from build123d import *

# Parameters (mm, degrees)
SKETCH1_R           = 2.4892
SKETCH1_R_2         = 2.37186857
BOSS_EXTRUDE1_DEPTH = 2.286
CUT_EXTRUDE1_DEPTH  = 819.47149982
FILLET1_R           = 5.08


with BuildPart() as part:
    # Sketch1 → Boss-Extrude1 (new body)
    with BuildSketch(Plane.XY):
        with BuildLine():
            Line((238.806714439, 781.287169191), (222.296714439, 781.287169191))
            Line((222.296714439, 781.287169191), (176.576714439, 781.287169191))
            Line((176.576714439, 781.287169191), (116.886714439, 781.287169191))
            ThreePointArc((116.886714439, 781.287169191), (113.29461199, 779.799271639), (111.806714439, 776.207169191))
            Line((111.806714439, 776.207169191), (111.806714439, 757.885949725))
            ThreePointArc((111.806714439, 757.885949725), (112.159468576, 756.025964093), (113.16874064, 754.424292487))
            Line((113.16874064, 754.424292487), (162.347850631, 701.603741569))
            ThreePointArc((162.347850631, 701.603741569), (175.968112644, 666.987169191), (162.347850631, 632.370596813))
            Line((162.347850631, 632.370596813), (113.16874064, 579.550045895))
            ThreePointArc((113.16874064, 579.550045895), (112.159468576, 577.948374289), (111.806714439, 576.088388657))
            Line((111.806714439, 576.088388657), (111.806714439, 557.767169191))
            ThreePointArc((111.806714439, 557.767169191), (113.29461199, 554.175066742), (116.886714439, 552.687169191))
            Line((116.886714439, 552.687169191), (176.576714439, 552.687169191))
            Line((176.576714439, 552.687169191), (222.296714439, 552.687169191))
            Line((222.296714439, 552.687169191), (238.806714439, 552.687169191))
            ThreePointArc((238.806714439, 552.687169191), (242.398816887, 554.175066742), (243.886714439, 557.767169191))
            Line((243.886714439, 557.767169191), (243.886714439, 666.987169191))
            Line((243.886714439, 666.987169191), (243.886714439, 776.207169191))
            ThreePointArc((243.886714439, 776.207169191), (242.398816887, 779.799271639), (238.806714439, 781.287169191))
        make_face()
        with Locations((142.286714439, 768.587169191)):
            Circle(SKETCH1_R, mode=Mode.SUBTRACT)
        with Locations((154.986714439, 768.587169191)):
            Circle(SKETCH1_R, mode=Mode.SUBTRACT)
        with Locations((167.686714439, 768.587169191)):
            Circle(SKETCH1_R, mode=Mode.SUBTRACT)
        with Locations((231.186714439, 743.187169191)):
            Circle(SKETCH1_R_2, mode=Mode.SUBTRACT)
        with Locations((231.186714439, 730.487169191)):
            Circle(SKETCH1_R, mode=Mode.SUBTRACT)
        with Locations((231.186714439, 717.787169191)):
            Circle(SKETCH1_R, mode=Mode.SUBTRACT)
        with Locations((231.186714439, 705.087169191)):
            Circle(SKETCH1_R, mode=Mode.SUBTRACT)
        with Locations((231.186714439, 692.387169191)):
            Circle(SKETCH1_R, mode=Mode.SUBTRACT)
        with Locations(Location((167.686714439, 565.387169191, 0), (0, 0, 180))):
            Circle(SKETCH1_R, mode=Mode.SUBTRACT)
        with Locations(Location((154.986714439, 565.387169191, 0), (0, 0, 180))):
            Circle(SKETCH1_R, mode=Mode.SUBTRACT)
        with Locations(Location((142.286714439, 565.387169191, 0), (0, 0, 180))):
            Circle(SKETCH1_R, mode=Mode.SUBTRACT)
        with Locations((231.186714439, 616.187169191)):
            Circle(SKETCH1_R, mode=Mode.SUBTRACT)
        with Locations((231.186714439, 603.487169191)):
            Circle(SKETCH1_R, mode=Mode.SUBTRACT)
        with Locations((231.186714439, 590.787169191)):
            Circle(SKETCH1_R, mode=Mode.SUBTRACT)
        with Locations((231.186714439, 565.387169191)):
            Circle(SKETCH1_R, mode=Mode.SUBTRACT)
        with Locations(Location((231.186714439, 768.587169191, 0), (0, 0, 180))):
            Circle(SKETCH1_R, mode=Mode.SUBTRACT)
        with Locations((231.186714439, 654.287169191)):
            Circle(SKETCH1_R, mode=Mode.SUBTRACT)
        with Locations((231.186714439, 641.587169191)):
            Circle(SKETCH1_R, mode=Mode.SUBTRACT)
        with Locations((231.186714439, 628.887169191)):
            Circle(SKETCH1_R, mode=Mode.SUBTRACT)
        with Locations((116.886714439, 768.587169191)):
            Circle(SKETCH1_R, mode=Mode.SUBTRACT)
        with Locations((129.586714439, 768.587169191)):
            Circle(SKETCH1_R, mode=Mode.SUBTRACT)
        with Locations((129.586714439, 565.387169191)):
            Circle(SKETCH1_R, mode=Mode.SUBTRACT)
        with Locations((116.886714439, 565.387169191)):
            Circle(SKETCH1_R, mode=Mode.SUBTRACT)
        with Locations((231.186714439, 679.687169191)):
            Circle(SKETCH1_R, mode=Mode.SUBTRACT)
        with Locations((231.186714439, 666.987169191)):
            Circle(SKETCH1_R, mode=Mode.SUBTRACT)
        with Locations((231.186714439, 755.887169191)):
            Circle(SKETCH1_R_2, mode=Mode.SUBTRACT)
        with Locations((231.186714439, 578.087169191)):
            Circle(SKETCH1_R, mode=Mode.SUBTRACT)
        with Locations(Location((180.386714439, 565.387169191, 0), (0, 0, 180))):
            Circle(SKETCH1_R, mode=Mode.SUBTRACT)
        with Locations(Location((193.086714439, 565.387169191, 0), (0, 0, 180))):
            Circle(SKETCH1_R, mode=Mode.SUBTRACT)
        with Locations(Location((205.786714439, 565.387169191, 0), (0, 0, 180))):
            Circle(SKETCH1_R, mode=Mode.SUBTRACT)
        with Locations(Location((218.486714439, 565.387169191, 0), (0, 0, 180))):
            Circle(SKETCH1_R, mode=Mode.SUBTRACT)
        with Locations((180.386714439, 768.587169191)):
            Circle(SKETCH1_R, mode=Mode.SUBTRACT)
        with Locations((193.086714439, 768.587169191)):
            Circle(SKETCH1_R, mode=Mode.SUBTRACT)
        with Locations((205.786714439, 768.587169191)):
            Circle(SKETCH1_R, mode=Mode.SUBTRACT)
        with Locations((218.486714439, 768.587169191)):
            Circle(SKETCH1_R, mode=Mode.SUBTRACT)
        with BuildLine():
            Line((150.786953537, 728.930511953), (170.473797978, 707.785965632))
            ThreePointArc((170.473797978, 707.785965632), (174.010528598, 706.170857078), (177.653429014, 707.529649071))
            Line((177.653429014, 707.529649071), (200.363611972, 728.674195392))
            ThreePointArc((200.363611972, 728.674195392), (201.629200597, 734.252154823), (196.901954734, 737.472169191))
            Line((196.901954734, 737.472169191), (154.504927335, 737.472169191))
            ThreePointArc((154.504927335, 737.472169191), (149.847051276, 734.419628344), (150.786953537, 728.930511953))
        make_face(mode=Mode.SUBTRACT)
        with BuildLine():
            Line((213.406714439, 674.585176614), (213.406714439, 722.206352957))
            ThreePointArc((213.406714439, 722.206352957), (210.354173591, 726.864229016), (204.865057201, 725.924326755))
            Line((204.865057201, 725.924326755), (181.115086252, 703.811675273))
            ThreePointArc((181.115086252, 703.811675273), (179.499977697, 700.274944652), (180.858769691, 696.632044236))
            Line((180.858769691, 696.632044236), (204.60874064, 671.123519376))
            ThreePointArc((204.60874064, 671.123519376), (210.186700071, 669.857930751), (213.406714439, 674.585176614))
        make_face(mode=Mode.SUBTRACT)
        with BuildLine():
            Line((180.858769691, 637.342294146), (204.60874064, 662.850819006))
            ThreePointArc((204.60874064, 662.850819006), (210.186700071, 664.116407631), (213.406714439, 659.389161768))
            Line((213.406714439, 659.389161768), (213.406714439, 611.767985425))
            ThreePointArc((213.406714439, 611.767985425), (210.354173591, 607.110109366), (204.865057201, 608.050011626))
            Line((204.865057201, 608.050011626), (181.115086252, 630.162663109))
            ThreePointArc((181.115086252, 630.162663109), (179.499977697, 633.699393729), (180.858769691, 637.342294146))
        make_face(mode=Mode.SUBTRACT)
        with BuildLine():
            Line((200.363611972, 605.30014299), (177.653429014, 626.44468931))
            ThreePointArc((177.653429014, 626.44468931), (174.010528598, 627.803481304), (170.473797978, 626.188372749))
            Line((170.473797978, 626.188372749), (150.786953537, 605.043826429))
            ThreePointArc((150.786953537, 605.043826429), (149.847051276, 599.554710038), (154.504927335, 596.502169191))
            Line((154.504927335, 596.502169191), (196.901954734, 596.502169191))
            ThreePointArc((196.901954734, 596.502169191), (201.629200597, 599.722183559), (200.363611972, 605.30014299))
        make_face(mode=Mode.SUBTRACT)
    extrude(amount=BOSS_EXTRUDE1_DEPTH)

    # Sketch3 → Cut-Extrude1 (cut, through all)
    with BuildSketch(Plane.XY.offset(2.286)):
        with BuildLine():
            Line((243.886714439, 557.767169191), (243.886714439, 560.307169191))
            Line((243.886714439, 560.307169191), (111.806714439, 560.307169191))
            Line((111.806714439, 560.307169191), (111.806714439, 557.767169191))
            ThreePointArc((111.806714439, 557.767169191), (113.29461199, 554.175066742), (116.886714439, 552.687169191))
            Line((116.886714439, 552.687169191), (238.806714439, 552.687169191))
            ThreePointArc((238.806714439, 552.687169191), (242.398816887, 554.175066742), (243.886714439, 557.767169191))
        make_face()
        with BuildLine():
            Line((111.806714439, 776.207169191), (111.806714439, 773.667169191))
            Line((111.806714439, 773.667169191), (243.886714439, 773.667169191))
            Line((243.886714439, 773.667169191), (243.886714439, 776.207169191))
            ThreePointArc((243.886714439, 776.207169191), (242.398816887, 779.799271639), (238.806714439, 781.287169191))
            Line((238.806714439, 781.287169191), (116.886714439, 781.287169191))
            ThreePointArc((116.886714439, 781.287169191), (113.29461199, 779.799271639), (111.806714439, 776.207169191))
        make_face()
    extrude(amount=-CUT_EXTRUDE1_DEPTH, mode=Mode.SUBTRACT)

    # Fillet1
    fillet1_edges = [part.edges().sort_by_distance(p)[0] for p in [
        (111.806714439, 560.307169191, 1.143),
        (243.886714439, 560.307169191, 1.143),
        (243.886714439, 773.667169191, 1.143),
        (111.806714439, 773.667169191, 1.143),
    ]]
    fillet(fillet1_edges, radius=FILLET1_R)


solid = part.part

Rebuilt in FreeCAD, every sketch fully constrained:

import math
import FreeCAD as App
import Part
import Sketcher
from FreeCAD import Vector
Q = App.Units.Quantity


def edges_at(feature, points):
    """Names of the edges that pass closest to the given points."""
    edges = feature.Shape.Edges
    near = lambda p: min(range(len(edges)), key=lambda i: edges[i].distToShape(Part.Vertex(*p))[0])
    return sorted({f"Edge{near(p) + 1}" for p in points})

doc = App.newDocument("Part")
body = doc.addObject("PartDesign::Body", "Body")

# Sketch on XY plane
sketch1 = doc.addObject("Sketcher::SketchObject", "Sketch")
body.addObject(sketch1)
sketch1.AttachmentSupport = (doc.XY_Plane, [""])
sketch1.MapMode = "FlatFace"
sketch1.addGeometry([
    Part.LineSegment(Vector(238.8, 781.3, 0), Vector(116.9, 781.3, 0)),  # 0
    Part.ArcOfCircle(Part.Circle(Vector(116.9, 776.2, 0), Vector(0, 0, 1), 5.1), math.radians(90), math.radians(180)),  # 1
    Part.LineSegment(Vector(111.8, 776.2, 0), Vector(111.8, 757.9, 0)),  # 2
    Part.ArcOfCircle(Part.Circle(Vector(116.9, 757.9, 0), Vector(0, 0, 1), 5.1), math.radians(180), math.radians(223)),  # 3
    Part.LineSegment(Vector(113.2, 754.4, 0), Vector(162.3, 701.6, 0)),  # 4
    Part.ArcOfCircle(Part.Circle(Vector(125.2, 667, 0), Vector(0, 0, 1), 50.8), math.radians(-43), math.radians(43)),  # 5
    Part.LineSegment(Vector(162.3, 632.4, 0), Vector(113.2, 579.6, 0)),  # 6
    Part.ArcOfCircle(Part.Circle(Vector(116.9, 576.1, 0), Vector(0, 0, 1), 5.1), math.radians(137), math.radians(180)),  # 7
    Part.LineSegment(Vector(111.8, 576.1, 0), Vector(111.8, 557.8, 0)),  # 8
    Part.ArcOfCircle(Part.Circle(Vector(116.9, 557.8, 0), Vector(0, 0, 1), 5.1), math.radians(180), math.radians(270)),  # 9
    Part.LineSegment(Vector(116.9, 552.7, 0), Vector(238.8, 552.7, 0)),  # 10
    Part.ArcOfCircle(Part.Circle(Vector(238.8, 557.8, 0), Vector(0, 0, 1), 5.1), math.radians(-90), math.radians(0)),  # 11
    Part.LineSegment(Vector(243.9, 557.8, 0), Vector(243.9, 776.2, 0)),  # 12
    Part.ArcOfCircle(Part.Circle(Vector(238.8, 776.2, 0), Vector(0, 0, 1), 5.1), math.radians(0), math.radians(90)),  # 13
    Part.Circle(Vector(116.9, 565.4, 0), Vector(0, 0, 1), 2.5),  # 14
    Part.Circle(Vector(129.6, 565.4, 0), Vector(0, 0, 1), 2.5),  # 15
    Part.Circle(Vector(142.3, 565.4, 0), Vector(0, 0, 1), 2.5),  # 16
    Part.Circle(Vector(155, 565.4, 0), Vector(0, 0, 1), 2.5),  # 17
    Part.Circle(Vector(167.7, 565.4, 0), Vector(0, 0, 1), 2.5),  # 18
    Part.Circle(Vector(180.4, 565.4, 0), Vector(0, 0, 1), 2.5),  # 19
    Part.Circle(Vector(193.1, 565.4, 0), Vector(0, 0, 1), 2.5),  # 20
    Part.LineSegment(Vector(177.7, 626.4, 0), Vector(200.4, 605.3, 0)),  # 21
    Part.ArcOfCircle(Part.Circle(Vector(196.9, 601.6, 0), Vector(0, 0, 1), 5.1), math.radians(-90), math.radians(47)),  # 22
    Part.LineSegment(Vector(196.9, 596.5, 0), Vector(154.5, 596.5, 0)),  # 23
    Part.ArcOfCircle(Part.Circle(Vector(154.5, 601.6, 0), Vector(0, 0, 1), 5.1), math.radians(137), math.radians(270)),  # 24
    Part.LineSegment(Vector(150.8, 605, 0), Vector(170.5, 626.2, 0)),  # 25
    Part.ArcOfCircle(Part.Circle(Vector(174.2, 622.7, 0), Vector(0, 0, 1), 5.1), math.radians(47), math.radians(137)),  # 26
    Part.Circle(Vector(205.8, 565.4, 0), Vector(0, 0, 1), 2.5),  # 27
    Part.Circle(Vector(218.5, 565.4, 0), Vector(0, 0, 1), 2.5),  # 28
    Part.Circle(Vector(231.2, 565.4, 0), Vector(0, 0, 1), 2.5),  # 29
    Part.Circle(Vector(231.2, 578.1, 0), Vector(0, 0, 1), 2.5),  # 30
    Part.Circle(Vector(231.2, 590.8, 0), Vector(0, 0, 1), 2.5),  # 31
    Part.Circle(Vector(231.2, 603.5, 0), Vector(0, 0, 1), 2.5),  # 32
    Part.ArcOfCircle(Part.Circle(Vector(184.6, 633.9, 0), Vector(0, 0, 1), 5.1), math.radians(137), math.radians(227)),  # 33
    Part.LineSegment(Vector(180.9, 637.3, 0), Vector(204.6, 662.9, 0)),  # 34
    Part.ArcOfCircle(Part.Circle(Vector(208.3, 659.4, 0), Vector(0, 0, 1), 5.1), math.radians(0), math.radians(137)),  # 35
    Part.LineSegment(Vector(213.4, 659.4, 0), Vector(213.4, 611.8, 0)),  # 36
    Part.ArcOfCircle(Part.Circle(Vector(208.3, 611.8, 0), Vector(0, 0, 1), 5.1), math.radians(-133), math.radians(0)),  # 37
    Part.LineSegment(Vector(204.9, 608.1, 0), Vector(181.1, 630.2, 0)),  # 38
    Part.Circle(Vector(231.2, 616.2, 0), Vector(0, 0, 1), 2.5),  # 39
    Part.Circle(Vector(231.2, 628.9, 0), Vector(0, 0, 1), 2.5),  # 40
    Part.Circle(Vector(231.2, 641.6, 0), Vector(0, 0, 1), 2.5),  # 41
    Part.Circle(Vector(231.2, 654.3, 0), Vector(0, 0, 1), 2.5),  # 42
    Part.Circle(Vector(116.9, 768.6, 0), Vector(0, 0, 1), 2.5),  # 43
    Part.Circle(Vector(129.6, 768.6, 0), Vector(0, 0, 1), 2.5),  # 44
    Part.Circle(Vector(142.3, 768.6, 0), Vector(0, 0, 1), 2.5),  # 45
    Part.Circle(Vector(155, 768.6, 0), Vector(0, 0, 1), 2.5),  # 46
    Part.Circle(Vector(167.7, 768.6, 0), Vector(0, 0, 1), 2.5),  # 47
    Part.LineSegment(Vector(213.4, 722.2, 0), Vector(213.4, 674.6, 0)),  # 48
    Part.ArcOfCircle(Part.Circle(Vector(208.3, 674.6, 0), Vector(0, 0, 1), 5.1), math.radians(-137), math.radians(0)),  # 49
    Part.LineSegment(Vector(204.6, 671.1, 0), Vector(180.9, 696.6, 0)),  # 50
    Part.ArcOfCircle(Part.Circle(Vector(184.6, 700.1, 0), Vector(0, 0, 1), 5.1), math.radians(133), math.radians(223)),  # 51
    Part.LineSegment(Vector(181.1, 703.8, 0), Vector(204.9, 725.9, 0)),  # 52
    Part.ArcOfCircle(Part.Circle(Vector(208.3, 722.2, 0), Vector(0, 0, 1), 5.1), math.radians(0), math.radians(133)),  # 53
    Part.Circle(Vector(231.2, 667, 0), Vector(0, 0, 1), 2.5),  # 54
    Part.Circle(Vector(231.2, 679.7, 0), Vector(0, 0, 1), 2.5),  # 55
    Part.Circle(Vector(231.2, 692.4, 0), Vector(0, 0, 1), 2.5),  # 56
    Part.Circle(Vector(231.2, 705.1, 0), Vector(0, 0, 1), 2.5),  # 57
    Part.Circle(Vector(231.2, 717.8, 0), Vector(0, 0, 1), 2.5),  # 58
    Part.LineSegment(Vector(170.5, 707.8, 0), Vector(150.8, 728.9, 0)),  # 59
    Part.ArcOfCircle(Part.Circle(Vector(154.5, 732.4, 0), Vector(0, 0, 1), 5.1), math.radians(90), math.radians(223)),  # 60
    Part.LineSegment(Vector(154.5, 737.5, 0), Vector(196.9, 737.5, 0)),  # 61
    Part.ArcOfCircle(Part.Circle(Vector(196.9, 732.4, 0), Vector(0, 0, 1), 5.1), math.radians(-47), math.radians(90)),  # 62
    Part.LineSegment(Vector(200.4, 728.7, 0), Vector(177.7, 707.5, 0)),  # 63
    Part.ArcOfCircle(Part.Circle(Vector(174.2, 711.2, 0), Vector(0, 0, 1), 5.1), math.radians(-137), math.radians(-47)),  # 64
    Part.Circle(Vector(180.4, 768.6, 0), Vector(0, 0, 1), 2.5),  # 65
    Part.Circle(Vector(193.1, 768.6, 0), Vector(0, 0, 1), 2.5),  # 66
    Part.Circle(Vector(231.2, 730.5, 0), Vector(0, 0, 1), 2.5),  # 67
    Part.Circle(Vector(231.2, 743.2, 0), Vector(0, 0, 1), 2.4),  # 68
    Part.Circle(Vector(205.8, 768.6, 0), Vector(0, 0, 1), 2.5),  # 69
    Part.Circle(Vector(218.5, 768.6, 0), Vector(0, 0, 1), 2.5),  # 70
    Part.Circle(Vector(231.2, 755.9, 0), Vector(0, 0, 1), 2.4),  # 71
    Part.Circle(Vector(231.2, 768.6, 0), Vector(0, 0, 1), 2.5),  # 72
], False)
sketch1.addConstraint([
    Sketcher.Constraint("Tangent", 0, 2, 1, 1),
    Sketcher.Constraint("Tangent", 1, 2, 2, 1),
    Sketcher.Constraint("Tangent", 2, 2, 3, 1),
    Sketcher.Constraint("Tangent", 3, 2, 4, 1),
    Sketcher.Constraint("Tangent", 4, 2, 5, 2),
    Sketcher.Constraint("Tangent", 5, 1, 6, 1),
    Sketcher.Constraint("Tangent", 6, 2, 7, 1),
    Sketcher.Constraint("Tangent", 7, 2, 8, 1),
    Sketcher.Constraint("Tangent", 8, 2, 9, 1),
    Sketcher.Constraint("Tangent", 9, 2, 10, 1),
    Sketcher.Constraint("Tangent", 10, 2, 11, 1),
    Sketcher.Constraint("Tangent", 11, 2, 12, 1),
    Sketcher.Constraint("Tangent", 12, 2, 13, 1),
    Sketcher.Constraint("Tangent", 13, 2, 0, 1),
    Sketcher.Constraint("Tangent", 21, 2, 22, 2),
    Sketcher.Constraint("Tangent", 22, 1, 23, 1),
    Sketcher.Constraint("Tangent", 23, 2, 24, 2),
    Sketcher.Constraint("Tangent", 24, 1, 25, 1),
    Sketcher.Constraint("Tangent", 25, 2, 26, 2),
    Sketcher.Constraint("Tangent", 26, 1, 21, 1),
    Sketcher.Constraint("Tangent", 33, 1, 34, 1),
    Sketcher.Constraint("Tangent", 34, 2, 35, 2),
    Sketcher.Constraint("Tangent", 35, 1, 36, 1),
    Sketcher.Constraint("Tangent", 36, 2, 37, 2),
    Sketcher.Constraint("Tangent", 37, 1, 38, 1),
    Sketcher.Constraint("Tangent", 38, 2, 33, 2),
    Sketcher.Constraint("Tangent", 48, 2, 49, 2),
    Sketcher.Constraint("Tangent", 49, 1, 50, 1),
    Sketcher.Constraint("Tangent", 50, 2, 51, 2),
    Sketcher.Constraint("Tangent", 51, 1, 52, 1),
    Sketcher.Constraint("Tangent", 52, 2, 53, 2),
    Sketcher.Constraint("Tangent", 53, 1, 48, 1),
    Sketcher.Constraint("Tangent", 59, 2, 60, 2),
    Sketcher.Constraint("Tangent", 60, 1, 61, 1),
    Sketcher.Constraint("Tangent", 61, 2, 62, 2),
    Sketcher.Constraint("Tangent", 62, 1, 63, 1),
    Sketcher.Constraint("Tangent", 63, 2, 64, 2),
    Sketcher.Constraint("Tangent", 64, 1, 59, 1),
    Sketcher.Constraint("Horizontal", 0),
    Sketcher.Constraint("Vertical", 2),
    Sketcher.Constraint("Vertical", 8),
    Sketcher.Constraint("Horizontal", 10),
    Sketcher.Constraint("Vertical", 12),
    Sketcher.Constraint("Horizontal", 23),
    Sketcher.Constraint("Vertical", 36),
    Sketcher.Constraint("Vertical", 48),
    Sketcher.Constraint("Horizontal", 61),
    Sketcher.Constraint("Equal", 1, 3),
    Sketcher.Constraint("Equal", 3, 7),
    Sketcher.Constraint("Equal", 7, 9),
    Sketcher.Constraint("Equal", 9, 11),
    Sketcher.Constraint("Equal", 11, 13),
    Sketcher.Constraint("Equal", 14, 15),
    Sketcher.Constraint("Equal", 15, 16),
    Sketcher.Constraint("Equal", 16, 17),
    Sketcher.Constraint("Equal", 17, 18),
    Sketcher.Constraint("Equal", 18, 19),
    Sketcher.Constraint("Equal", 19, 20),
    Sketcher.Constraint("Equal", 13, 22),
    Sketcher.Constraint("Equal", 22, 24),
    Sketcher.Constraint("Equal", 24, 26),
    Sketcher.Constraint("Equal", 20, 27),
    Sketcher.Constraint("Equal", 27, 28),
    Sketcher.Constraint("Equal", 28, 29),
    Sketcher.Constraint("Equal", 29, 30),
    Sketcher.Constraint("Equal", 30, 31),
    Sketcher.Constraint("Equal", 31, 32),
    Sketcher.Constraint("Equal", 26, 33),
    Sketcher.Constraint("Equal", 33, 35),
    Sketcher.Constraint("Equal", 35, 37),
    Sketcher.Constraint("Equal", 32, 39),
    Sketcher.Constraint("Equal", 39, 40),
    Sketcher.Constraint("Equal", 40, 41),
    Sketcher.Constraint("Equal", 41, 42),
    Sketcher.Constraint("Equal", 42, 43),
    Sketcher.Constraint("Equal", 43, 44),
    Sketcher.Constraint("Equal", 44, 45),
    Sketcher.Constraint("Equal", 45, 46),
    Sketcher.Constraint("Equal", 46, 47),
    Sketcher.Constraint("Equal", 37, 49),
    Sketcher.Constraint("Equal", 49, 51),
    Sketcher.Constraint("Equal", 51, 53),
    Sketcher.Constraint("Equal", 47, 54),
    Sketcher.Constraint("Equal", 54, 55),
    Sketcher.Constraint("Equal", 55, 56),
    Sketcher.Constraint("Equal", 56, 57),
    Sketcher.Constraint("Equal", 57, 58),
    Sketcher.Constraint("Equal", 53, 60),
    Sketcher.Constraint("Equal", 60, 62),
    Sketcher.Constraint("Equal", 62, 64),
    Sketcher.Constraint("Equal", 58, 65),
    Sketcher.Constraint("Equal", 65, 66),
    Sketcher.Constraint("Equal", 66, 67),
    Sketcher.Constraint("Equal", 67, 69),
    Sketcher.Constraint("Equal", 69, 70),
    Sketcher.Constraint("Equal", 68, 71),
    Sketcher.Constraint("Equal", 70, 72),
    Sketcher.Constraint("Perpendicular", 6, 21),
    Sketcher.Constraint("Perpendicular", 21, 25),
    Sketcher.Constraint("Parallel", 25, 34),
    Sketcher.Constraint("Perpendicular", 34, 38),
    Sketcher.Constraint("Parallel", 4, 50),
    Sketcher.Constraint("Perpendicular", 50, 52),
    Sketcher.Constraint("Perpendicular", 52, 59),
    Sketcher.Constraint("Perpendicular", 59, 63),
    Sketcher.Constraint("Horizontal", 14, 3, 15, 3),
    Sketcher.Constraint("Horizontal", 15, 3, 16, 3),
    Sketcher.Constraint("Horizontal", 16, 3, 17, 3),
    Sketcher.Constraint("Horizontal", 17, 3, 18, 3),
    Sketcher.Constraint("Horizontal", 18, 3, 19, 3),
    Sketcher.Constraint("Horizontal", 19, 3, 20, 3),
    Sketcher.Constraint("Horizontal", 20, 3, 27, 3),
    Sketcher.Constraint("Horizontal", 27, 3, 28, 3),
    Sketcher.Constraint("Horizontal", 28, 3, 29, 3),
    Sketcher.Constraint("Horizontal", 43, 3, 44, 3),
    Sketcher.Constraint("Horizontal", 44, 3, 45, 3),
    Sketcher.Constraint("Horizontal", 45, 3, 46, 3),
    Sketcher.Constraint("Horizontal", 46, 3, 47, 3),
    Sketcher.Constraint("Horizontal", 5, 3, 54, 3),
    Sketcher.Constraint("Horizontal", 47, 3, 65, 3),
    Sketcher.Constraint("Horizontal", 65, 3, 66, 3),
    Sketcher.Constraint("Horizontal", 66, 3, 69, 3),
    Sketcher.Constraint("Horizontal", 69, 3, 70, 3),
    Sketcher.Constraint("Horizontal", 70, 3, 72, 3),
    Sketcher.Constraint("Vertical", 3, 3, 7, 3),
    Sketcher.Constraint("Vertical", 9, 3, 14, 3),
    Sketcher.Constraint("Vertical", 29, 3, 30, 3),
    Sketcher.Constraint("Vertical", 30, 3, 31, 3),
    Sketcher.Constraint("Vertical", 31, 3, 32, 3),
    Sketcher.Constraint("Vertical", 32, 3, 39, 3),
    Sketcher.Constraint("Vertical", 39, 3, 40, 3),
    Sketcher.Constraint("Vertical", 40, 3, 41, 3),
    Sketcher.Constraint("Vertical", 41, 3, 42, 3),
    Sketcher.Constraint("Vertical", 14, 3, 43, 3),
    Sketcher.Constraint("Vertical", 15, 3, 44, 3),
    Sketcher.Constraint("Vertical", 16, 3, 45, 3),
    Sketcher.Constraint("Vertical", 17, 3, 46, 3),
    Sketcher.Constraint("Vertical", 18, 3, 47, 3),
    Sketcher.Constraint("Vertical", 37, 3, 49, 3),
    Sketcher.Constraint("Vertical", 33, 3, 51, 3),
    Sketcher.Constraint("Vertical", 42, 3, 54, 3),
    Sketcher.Constraint("Vertical", 54, 3, 55, 3),
    Sketcher.Constraint("Vertical", 55, 3, 56, 3),
    Sketcher.Constraint("Vertical", 56, 3, 57, 3),
    Sketcher.Constraint("Vertical", 57, 3, 58, 3),
    Sketcher.Constraint("Vertical", 24, 3, 60, 3),
    Sketcher.Constraint("Vertical", 22, 3, 62, 3),
    Sketcher.Constraint("Vertical", 26, 3, 64, 3),
    Sketcher.Constraint("Vertical", 19, 3, 65, 3),
    Sketcher.Constraint("Vertical", 20, 3, 66, 3),
    Sketcher.Constraint("Vertical", 58, 3, 67, 3),
    Sketcher.Constraint("Vertical", 67, 3, 68, 3),
    Sketcher.Constraint("Vertical", 27, 3, 69, 3),
    Sketcher.Constraint("Vertical", 28, 3, 70, 3),
    Sketcher.Constraint("Vertical", 68, 3, 71, 3),
    Sketcher.Constraint("Vertical", 71, 3, 72, 3),
    Sketcher.Constraint("Equal", 2, 8),
    Sketcher.Constraint("Radius", 5, Q("2 in")),
    Sketcher.Constraint("Radius", 1, Q("0.2 in")),
    Sketcher.Constraint("Diameter", 14, Q("0.196 in")),
    Sketcher.Constraint("DistanceX", 0, 2, 0, 1, Q("4.8 in")),
    Sketcher.Constraint("DistanceY", 12, 1, 12, 2, Q("8.6 in")),
    Sketcher.Constraint("Diameter", 68, 4.743737),
    Sketcher.Constraint("DistanceY", -1, 1, 26, 3, Q("24.5167998 in")),
    Sketcher.Constraint("Distance", 4, 72.1706),
    Sketcher.Constraint("DistanceY", 2, 2, 2, 1, 18.321219),
    Sketcher.Constraint("DistanceY", -1, 1, 51, 3, 700.093701),
    Sketcher.Constraint("Distance", 21, 31.029732),
    Sketcher.Constraint("Distance", 38, 32.450431),
    Sketcher.Constraint("DistanceY", -1, 1, 1, 3, 776.207169),
    Sketcher.Constraint("DistanceY", -1, 1, 14, 3, 565.387169),
    Sketcher.Constraint("DistanceX", -1, 1, 26, 3, 174.191772),
    Sketcher.Constraint("DistanceY", -1, 1, 30, 3, 578.087169),
    Sketcher.Constraint("DistanceY", -1, 1, 31, 3, 590.787169),
    Sketcher.Constraint("DistanceY", -1, 1, 32, 3, 603.487169),
    Sketcher.Constraint("DistanceY", -1, 1, 35, 3, 659.389162),
    Sketcher.Constraint("DistanceY", -1, 1, 39, 3, 616.187169),
    Sketcher.Constraint("DistanceY", -1, 1, 40, 3, 628.887169),
    Sketcher.Constraint("DistanceY", -1, 1, 41, 3, 641.587169),
    Sketcher.Constraint("DistanceY", -1, 1, 42, 3, 654.287169),
    Sketcher.Constraint("DistanceY", -1, 1, 43, 3, 768.587169),
    Sketcher.Constraint("DistanceY", -1, 1, 55, 3, 679.687169),
    Sketcher.Constraint("DistanceY", -1, 1, 56, 3, 692.387169),
    Sketcher.Constraint("DistanceY", -1, 1, 57, 3, 705.087169),
    Sketcher.Constraint("DistanceY", -1, 1, 58, 3, 717.787169),
    Sketcher.Constraint("DistanceY", -1, 1, 60, 3, 732.392169),
    Sketcher.Constraint("DistanceY", -1, 1, 67, 3, 730.487169),
    Sketcher.Constraint("DistanceY", -1, 1, 68, 3, 743.187169),
    Sketcher.Constraint("DistanceY", -1, 1, 71, 3, 755.887169),
    Sketcher.Constraint("DistanceX", -1, 1, 3, 2, 113.168741),
    Sketcher.Constraint("DistanceX", -1, 1, 33, 1, 180.85877),
    Sketcher.Constraint("DistanceX", -1, 1, 15, 3, 129.586714),
    Sketcher.Constraint("DistanceX", -1, 1, 16, 3, 142.286714),
    Sketcher.Constraint("DistanceX", -1, 1, 17, 3, 154.986714),
    Sketcher.Constraint("DistanceX", -1, 1, 18, 3, 167.686714),
    Sketcher.Constraint("DistanceX", -1, 1, 19, 3, 180.386714),
    Sketcher.Constraint("DistanceX", -1, 1, 20, 3, 193.086714),
    Sketcher.Constraint("DistanceX", -1, 1, 27, 3, 205.786714),
    Sketcher.Constraint("DistanceX", -1, 1, 28, 3, 218.486714),
    Sketcher.Constraint("DistanceX", -1, 1, 29, 3, 231.186714),
])
pad1 = doc.addObject("PartDesign::Pad", "Pad")
body.addObject(pad1)
pad1.Profile = sketch1
pad1.Length = Q("0.09 in")

# Sketch on XY plane
sketch2 = doc.addObject("Sketcher::SketchObject", "Sketch001")
body.addObject(sketch2)
sketch2.AttachmentSupport = (doc.XY_Plane, [""])
sketch2.MapMode = "FlatFace"
sketch2.AttachmentOffset = App.Placement(Vector(0, 0, 0.09 * 25.4), App.Rotation())
sketch2.addGeometry([
    Part.LineSegment(Vector(243.9, 557.8, 0), Vector(243.9, 560.3, 0)),  # 0
    Part.LineSegment(Vector(243.9, 560.3, 0), Vector(111.8, 560.3, 0)),  # 1
    Part.LineSegment(Vector(111.8, 560.3, 0), Vector(111.8, 557.8, 0)),  # 2
    Part.ArcOfCircle(Part.Circle(Vector(116.9, 557.8, 0), Vector(0, 0, 1), 5.1), math.radians(180), math.radians(270)),  # 3
    Part.LineSegment(Vector(116.9, 552.7, 0), Vector(238.8, 552.7, 0)),  # 4
    Part.ArcOfCircle(Part.Circle(Vector(238.8, 557.8, 0), Vector(0, 0, 1), 5.1), math.radians(-90), math.radians(0)),  # 5
    Part.LineSegment(Vector(111.8, 776.2, 0), Vector(111.8, 773.7, 0)),  # 6
    Part.LineSegment(Vector(111.8, 773.7, 0), Vector(243.9, 773.7, 0)),  # 7
    Part.LineSegment(Vector(243.9, 773.7, 0), Vector(243.9, 776.2, 0)),  # 8
    Part.ArcOfCircle(Part.Circle(Vector(238.8, 776.2, 0), Vector(0, 0, 1), 5.1), math.radians(0), math.radians(90)),  # 9
    Part.LineSegment(Vector(238.8, 781.3, 0), Vector(116.9, 781.3, 0)),  # 10
    Part.ArcOfCircle(Part.Circle(Vector(116.9, 776.2, 0), Vector(0, 0, 1), 5.1), math.radians(90), math.radians(180)),  # 11
], False)
sketch2.addConstraint([
    Sketcher.Constraint("Coincident", 0, 2, 1, 1),
    Sketcher.Constraint("Coincident", 1, 2, 2, 1),
    Sketcher.Constraint("Tangent", 2, 2, 3, 1),
    Sketcher.Constraint("Tangent", 3, 2, 4, 1),
    Sketcher.Constraint("Tangent", 4, 2, 5, 1),
    Sketcher.Constraint("Tangent", 5, 2, 0, 1),
    Sketcher.Constraint("Coincident", 6, 2, 7, 1),
    Sketcher.Constraint("Coincident", 7, 2, 8, 1),
    Sketcher.Constraint("Tangent", 8, 2, 9, 1),
    Sketcher.Constraint("Tangent", 9, 2, 10, 1),
    Sketcher.Constraint("Tangent", 10, 2, 11, 1),
    Sketcher.Constraint("Tangent", 11, 2, 6, 1),
    Sketcher.Constraint("Vertical", 0),
    Sketcher.Constraint("Horizontal", 1),
    Sketcher.Constraint("Vertical", 2),
    Sketcher.Constraint("Horizontal", 4),
    Sketcher.Constraint("Vertical", 6),
    Sketcher.Constraint("Horizontal", 7),
    Sketcher.Constraint("Vertical", 8),
    Sketcher.Constraint("Horizontal", 10),
    Sketcher.Constraint("Equal", 3, 5),
    Sketcher.Constraint("Equal", 5, 9),
    Sketcher.Constraint("Equal", 9, 11),
    Sketcher.Constraint("Vertical", 5, 3, 9, 3),
    Sketcher.Constraint("Vertical", 3, 3, 11, 3),
    Sketcher.Constraint("Equal", 2, 6),
    Sketcher.Constraint("Radius", 3, Q("0.2 in")),
    Sketcher.Constraint("DistanceX", 1, 2, 1, 1, Q("5.2 in")),
    Sketcher.Constraint("DistanceY", 0, 1, 0, 2, Q("0.1 in")),
    Sketcher.Constraint("DistanceY", 5, 3, 9, 3, Q("8.6 in")),
    Sketcher.Constraint("DistanceY", -1, 1, 3, 3, 557.767169),
    Sketcher.Constraint("DistanceX", -1, 1, 3, 3, 116.886714),
])
pocket1 = doc.addObject("PartDesign::Pocket", "Pocket")
body.addObject(pocket1)
pocket1.Profile = sketch2
pocket1.Type = "ThroughAll"
doc.recompute()

fillet = doc.addObject("PartDesign::Fillet", "Fillet")
body.addObject(fillet)
fillet.Base = (pocket1, edges_at(pocket1, [
    (111.807, 560.307, 1.143),
    (243.887, 560.307, 1.143),
    (243.887, 773.667, 1.143),
    (111.807, 773.667, 1.143),
]))
fillet.Radius = Q("0.2 in")

doc.recompute()
